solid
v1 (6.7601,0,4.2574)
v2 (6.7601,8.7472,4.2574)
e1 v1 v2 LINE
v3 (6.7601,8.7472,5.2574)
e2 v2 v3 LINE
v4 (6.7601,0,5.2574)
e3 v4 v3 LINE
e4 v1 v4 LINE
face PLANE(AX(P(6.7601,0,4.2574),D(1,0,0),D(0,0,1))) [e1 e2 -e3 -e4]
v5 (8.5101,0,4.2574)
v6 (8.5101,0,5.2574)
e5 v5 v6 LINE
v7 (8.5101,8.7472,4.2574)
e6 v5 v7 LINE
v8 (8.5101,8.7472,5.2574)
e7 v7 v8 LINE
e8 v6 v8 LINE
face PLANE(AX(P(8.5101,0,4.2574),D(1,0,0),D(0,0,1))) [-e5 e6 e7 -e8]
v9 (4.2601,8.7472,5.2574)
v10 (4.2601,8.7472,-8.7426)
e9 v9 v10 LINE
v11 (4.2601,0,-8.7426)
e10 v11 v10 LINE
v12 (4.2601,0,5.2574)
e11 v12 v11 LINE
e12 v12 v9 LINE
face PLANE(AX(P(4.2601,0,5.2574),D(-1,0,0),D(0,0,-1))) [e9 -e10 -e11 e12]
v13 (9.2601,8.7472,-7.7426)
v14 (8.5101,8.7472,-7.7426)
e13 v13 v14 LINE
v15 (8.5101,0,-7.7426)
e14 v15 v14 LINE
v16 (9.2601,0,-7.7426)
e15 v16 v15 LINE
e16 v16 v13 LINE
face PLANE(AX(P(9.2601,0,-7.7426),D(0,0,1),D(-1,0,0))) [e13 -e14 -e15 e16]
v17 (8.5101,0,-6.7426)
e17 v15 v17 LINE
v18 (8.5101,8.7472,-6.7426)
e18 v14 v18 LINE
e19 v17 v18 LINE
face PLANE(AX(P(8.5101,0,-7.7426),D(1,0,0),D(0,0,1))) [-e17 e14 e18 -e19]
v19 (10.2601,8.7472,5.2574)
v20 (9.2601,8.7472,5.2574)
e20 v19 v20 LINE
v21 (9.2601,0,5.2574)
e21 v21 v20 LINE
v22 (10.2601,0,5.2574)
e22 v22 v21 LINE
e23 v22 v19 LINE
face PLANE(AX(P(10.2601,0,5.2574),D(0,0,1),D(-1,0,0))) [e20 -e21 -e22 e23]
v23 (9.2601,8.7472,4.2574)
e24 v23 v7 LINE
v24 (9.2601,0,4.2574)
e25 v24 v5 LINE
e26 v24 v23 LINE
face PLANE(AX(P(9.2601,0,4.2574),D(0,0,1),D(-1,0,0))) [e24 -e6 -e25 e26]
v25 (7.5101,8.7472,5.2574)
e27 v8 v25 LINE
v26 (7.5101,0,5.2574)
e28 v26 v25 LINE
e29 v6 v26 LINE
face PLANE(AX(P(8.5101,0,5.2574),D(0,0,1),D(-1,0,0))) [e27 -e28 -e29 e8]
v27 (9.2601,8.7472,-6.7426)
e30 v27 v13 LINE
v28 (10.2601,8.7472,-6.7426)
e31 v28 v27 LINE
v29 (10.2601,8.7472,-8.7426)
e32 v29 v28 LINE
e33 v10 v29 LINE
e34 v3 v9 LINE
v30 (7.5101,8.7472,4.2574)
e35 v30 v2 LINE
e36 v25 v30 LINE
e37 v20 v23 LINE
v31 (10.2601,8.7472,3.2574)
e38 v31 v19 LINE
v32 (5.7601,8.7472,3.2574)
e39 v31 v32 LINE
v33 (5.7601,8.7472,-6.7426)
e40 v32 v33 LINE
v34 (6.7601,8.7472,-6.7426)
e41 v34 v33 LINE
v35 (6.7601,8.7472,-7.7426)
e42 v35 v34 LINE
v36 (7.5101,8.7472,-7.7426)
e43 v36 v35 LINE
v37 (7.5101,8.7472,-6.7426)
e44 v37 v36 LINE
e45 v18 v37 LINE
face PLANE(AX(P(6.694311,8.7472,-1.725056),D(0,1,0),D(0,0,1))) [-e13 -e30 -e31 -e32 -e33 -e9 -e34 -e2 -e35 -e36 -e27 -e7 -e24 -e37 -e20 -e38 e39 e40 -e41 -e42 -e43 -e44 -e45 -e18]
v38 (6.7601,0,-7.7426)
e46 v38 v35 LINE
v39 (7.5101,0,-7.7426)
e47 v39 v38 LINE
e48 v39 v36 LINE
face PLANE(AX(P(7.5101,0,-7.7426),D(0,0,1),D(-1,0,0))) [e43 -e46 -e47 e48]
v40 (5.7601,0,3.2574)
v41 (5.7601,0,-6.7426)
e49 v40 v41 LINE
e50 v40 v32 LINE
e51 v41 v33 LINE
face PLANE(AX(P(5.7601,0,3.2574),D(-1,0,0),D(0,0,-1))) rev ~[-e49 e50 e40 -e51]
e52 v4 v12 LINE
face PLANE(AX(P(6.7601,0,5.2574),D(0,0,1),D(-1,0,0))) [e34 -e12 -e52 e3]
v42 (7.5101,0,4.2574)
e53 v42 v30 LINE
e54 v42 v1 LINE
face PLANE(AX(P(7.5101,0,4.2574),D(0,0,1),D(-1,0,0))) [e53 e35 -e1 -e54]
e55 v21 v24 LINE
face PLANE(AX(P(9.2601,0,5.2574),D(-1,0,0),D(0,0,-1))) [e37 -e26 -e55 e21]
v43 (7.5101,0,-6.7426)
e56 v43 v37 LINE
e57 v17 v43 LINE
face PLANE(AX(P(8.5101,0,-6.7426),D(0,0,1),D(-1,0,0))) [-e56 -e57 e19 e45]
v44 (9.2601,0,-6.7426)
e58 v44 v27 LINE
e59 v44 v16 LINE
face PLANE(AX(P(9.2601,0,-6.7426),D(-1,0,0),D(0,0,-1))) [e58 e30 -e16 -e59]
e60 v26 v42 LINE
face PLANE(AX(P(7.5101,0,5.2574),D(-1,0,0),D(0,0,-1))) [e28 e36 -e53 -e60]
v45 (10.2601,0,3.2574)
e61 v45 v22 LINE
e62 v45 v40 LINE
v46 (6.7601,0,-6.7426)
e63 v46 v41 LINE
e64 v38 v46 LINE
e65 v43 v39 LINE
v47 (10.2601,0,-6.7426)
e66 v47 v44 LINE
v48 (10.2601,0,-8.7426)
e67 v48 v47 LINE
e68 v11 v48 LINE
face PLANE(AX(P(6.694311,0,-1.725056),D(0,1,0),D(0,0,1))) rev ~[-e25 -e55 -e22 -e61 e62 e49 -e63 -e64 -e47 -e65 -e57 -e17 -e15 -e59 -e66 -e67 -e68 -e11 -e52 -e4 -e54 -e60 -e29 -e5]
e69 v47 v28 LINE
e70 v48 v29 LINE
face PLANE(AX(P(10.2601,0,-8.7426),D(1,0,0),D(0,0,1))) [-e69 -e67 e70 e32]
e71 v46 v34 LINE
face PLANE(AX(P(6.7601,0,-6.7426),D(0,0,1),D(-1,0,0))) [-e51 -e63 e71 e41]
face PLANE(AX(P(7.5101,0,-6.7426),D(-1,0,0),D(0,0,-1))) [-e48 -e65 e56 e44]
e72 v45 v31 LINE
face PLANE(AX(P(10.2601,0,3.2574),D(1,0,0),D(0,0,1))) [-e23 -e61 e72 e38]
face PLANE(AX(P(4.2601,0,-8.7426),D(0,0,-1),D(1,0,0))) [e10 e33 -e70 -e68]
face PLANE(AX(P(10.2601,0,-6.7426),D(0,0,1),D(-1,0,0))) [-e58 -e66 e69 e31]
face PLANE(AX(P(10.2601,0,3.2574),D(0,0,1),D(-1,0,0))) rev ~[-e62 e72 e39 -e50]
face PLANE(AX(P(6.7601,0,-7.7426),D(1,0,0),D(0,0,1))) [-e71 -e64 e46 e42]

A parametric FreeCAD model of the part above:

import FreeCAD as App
import Part
import Sketcher

V = App.Vector


def add_polygon(sketch, points):
    """Adds a closed chain of lines whose ends are joined by coincident constraints."""
    first, n = sketch.GeometryCount, len(points)
    for a, b in zip(points, points[1:] + points[:1]):
        sketch.addGeometry(Part.LineSegment(App.Vector(*a, 0), App.Vector(*b, 0)), False)
    for i in range(n):
        sketch.addConstraint(Sketcher.Constraint("Coincident", first + i, 2, first + (i + 1) % n, 1))

doc = App.newDocument("Part")
body = doc.addObject("PartDesign::Body", "Body")

sketch1 = body.newObject("Sketcher::SketchObject", "Sketch")
sketch1.AttachmentSupport = (doc.getObject("XZ_Plane"), [""])
sketch1.MapMode = "FlatFace"
add_polygon(sketch1, [(5.8, -6.7), (5.8, 3.3), (10.3, 3.3), (10.3, 5.3), (9.3, 5.3), (9.3, 4.3), (8.5, 4.3), (8.5, 5.3), (7.5, 5.3), (7.5, 4.3), (6.8, 4.3), (6.8, 5.3), (4.3, 5.3), (4.3, -8.7), (10.3, -8.7), (10.3, -6.7), (9.3, -6.7), (9.3, -7.7), (8.5, -7.7), (8.5, -6.7), (7.5, -6.7), (7.5, -7.7), (6.8, -7.7), (6.8, -6.7)])
sketch1.addConstraint([
    Sketcher.Constraint("Vertical", 0),
    Sketcher.Constraint("Horizontal", 1),
    Sketcher.Constraint("Vertical", 2),
    Sketcher.Constraint("Horizontal", 3),
    Sketcher.Constraint("Vertical", 4),
    Sketcher.Constraint("Horizontal", 5),
    Sketcher.Constraint("Vertical", 6),
    Sketcher.Constraint("Horizontal", 7),
    Sketcher.Constraint("Vertical", 8),
    Sketcher.Constraint("Horizontal", 9),
    Sketcher.Constraint("Vertical", 10),
    Sketcher.Constraint("Horizontal", 11),
    Sketcher.Constraint("Vertical", 12),
    Sketcher.Constraint("Horizontal", 13),
    Sketcher.Constraint("Vertical", 14),
    Sketcher.Constraint("Horizontal", 15),
    Sketcher.Constraint("Vertical", 16),
    Sketcher.Constraint("Horizontal", 17),
    Sketcher.Constraint("Vertical", 18),
    Sketcher.Constraint("Horizontal", 19),
    Sketcher.Constraint("Vertical", 20),
    Sketcher.Constraint("Horizontal", 21),
    Sketcher.Constraint("Vertical", 22),
    Sketcher.Constraint("Horizontal", 23),
    Sketcher.Constraint("Horizontal", 3, 2, 6, 2),
    Sketcher.Constraint("Horizontal", 5, 2, 8, 2),
    Sketcher.Constraint("Horizontal", 7, 2, 10, 2),
    Sketcher.Constraint("Horizontal", 15, 2, 18, 2),
    Sketcher.Constraint("Horizontal", 17, 2, 20, 2),
    Sketcher.Constraint("Horizontal", 19, 2, 22, 2),
    Sketcher.Constraint("Vertical", 2, 2, 13, 2),
    Sketcher.Constraint("Vertical", 4, 2, 15, 2),
    Sketcher.Constraint("Vertical", 6, 2, 17, 2),
    Sketcher.Constraint("Vertical", 8, 2, 19, 2),
    Sketcher.Constraint("Vertical", 10, 2, 21, 2),
    Sketcher.Constraint("Equal", 3, 7),
    Sketcher.Constraint("Equal", 5, 9),
    Sketcher.Constraint("Equal", 19, 23),
    Sketcher.Constraint("Equal", 23, 4),
    Sketcher.Constraint("Equal", 2, 14),
    Sketcher.Constraint("Equal", 10, 16),
    Sketcher.Constraint("DistanceX", 3, 2, 3, 1, 1.0),
    Sketcher.Constraint("DistanceX", 13, 1, 13, 2, 6.0),
    Sketcher.Constraint("DistanceY", 0, 1, 0, 2, 10.0),
    Sketcher.Constraint("DistanceY", 2, 1, 2, 2, 2.0),
    Sketcher.Constraint("DistanceX", 1, 1, 1, 2, 4.5),
    Sketcher.Constraint("DistanceX", -1, 1, 0, 2, 5.76),
    Sketcher.Constraint("DistanceY", -1, 1, 0, 2, 3.2574),
])
pad1 = body.newObject("PartDesign::Pad", "Pad")
pad1.Profile = sketch1
pad1.Length = 8.7472
pad1.Reversed = True

doc.recompute()
